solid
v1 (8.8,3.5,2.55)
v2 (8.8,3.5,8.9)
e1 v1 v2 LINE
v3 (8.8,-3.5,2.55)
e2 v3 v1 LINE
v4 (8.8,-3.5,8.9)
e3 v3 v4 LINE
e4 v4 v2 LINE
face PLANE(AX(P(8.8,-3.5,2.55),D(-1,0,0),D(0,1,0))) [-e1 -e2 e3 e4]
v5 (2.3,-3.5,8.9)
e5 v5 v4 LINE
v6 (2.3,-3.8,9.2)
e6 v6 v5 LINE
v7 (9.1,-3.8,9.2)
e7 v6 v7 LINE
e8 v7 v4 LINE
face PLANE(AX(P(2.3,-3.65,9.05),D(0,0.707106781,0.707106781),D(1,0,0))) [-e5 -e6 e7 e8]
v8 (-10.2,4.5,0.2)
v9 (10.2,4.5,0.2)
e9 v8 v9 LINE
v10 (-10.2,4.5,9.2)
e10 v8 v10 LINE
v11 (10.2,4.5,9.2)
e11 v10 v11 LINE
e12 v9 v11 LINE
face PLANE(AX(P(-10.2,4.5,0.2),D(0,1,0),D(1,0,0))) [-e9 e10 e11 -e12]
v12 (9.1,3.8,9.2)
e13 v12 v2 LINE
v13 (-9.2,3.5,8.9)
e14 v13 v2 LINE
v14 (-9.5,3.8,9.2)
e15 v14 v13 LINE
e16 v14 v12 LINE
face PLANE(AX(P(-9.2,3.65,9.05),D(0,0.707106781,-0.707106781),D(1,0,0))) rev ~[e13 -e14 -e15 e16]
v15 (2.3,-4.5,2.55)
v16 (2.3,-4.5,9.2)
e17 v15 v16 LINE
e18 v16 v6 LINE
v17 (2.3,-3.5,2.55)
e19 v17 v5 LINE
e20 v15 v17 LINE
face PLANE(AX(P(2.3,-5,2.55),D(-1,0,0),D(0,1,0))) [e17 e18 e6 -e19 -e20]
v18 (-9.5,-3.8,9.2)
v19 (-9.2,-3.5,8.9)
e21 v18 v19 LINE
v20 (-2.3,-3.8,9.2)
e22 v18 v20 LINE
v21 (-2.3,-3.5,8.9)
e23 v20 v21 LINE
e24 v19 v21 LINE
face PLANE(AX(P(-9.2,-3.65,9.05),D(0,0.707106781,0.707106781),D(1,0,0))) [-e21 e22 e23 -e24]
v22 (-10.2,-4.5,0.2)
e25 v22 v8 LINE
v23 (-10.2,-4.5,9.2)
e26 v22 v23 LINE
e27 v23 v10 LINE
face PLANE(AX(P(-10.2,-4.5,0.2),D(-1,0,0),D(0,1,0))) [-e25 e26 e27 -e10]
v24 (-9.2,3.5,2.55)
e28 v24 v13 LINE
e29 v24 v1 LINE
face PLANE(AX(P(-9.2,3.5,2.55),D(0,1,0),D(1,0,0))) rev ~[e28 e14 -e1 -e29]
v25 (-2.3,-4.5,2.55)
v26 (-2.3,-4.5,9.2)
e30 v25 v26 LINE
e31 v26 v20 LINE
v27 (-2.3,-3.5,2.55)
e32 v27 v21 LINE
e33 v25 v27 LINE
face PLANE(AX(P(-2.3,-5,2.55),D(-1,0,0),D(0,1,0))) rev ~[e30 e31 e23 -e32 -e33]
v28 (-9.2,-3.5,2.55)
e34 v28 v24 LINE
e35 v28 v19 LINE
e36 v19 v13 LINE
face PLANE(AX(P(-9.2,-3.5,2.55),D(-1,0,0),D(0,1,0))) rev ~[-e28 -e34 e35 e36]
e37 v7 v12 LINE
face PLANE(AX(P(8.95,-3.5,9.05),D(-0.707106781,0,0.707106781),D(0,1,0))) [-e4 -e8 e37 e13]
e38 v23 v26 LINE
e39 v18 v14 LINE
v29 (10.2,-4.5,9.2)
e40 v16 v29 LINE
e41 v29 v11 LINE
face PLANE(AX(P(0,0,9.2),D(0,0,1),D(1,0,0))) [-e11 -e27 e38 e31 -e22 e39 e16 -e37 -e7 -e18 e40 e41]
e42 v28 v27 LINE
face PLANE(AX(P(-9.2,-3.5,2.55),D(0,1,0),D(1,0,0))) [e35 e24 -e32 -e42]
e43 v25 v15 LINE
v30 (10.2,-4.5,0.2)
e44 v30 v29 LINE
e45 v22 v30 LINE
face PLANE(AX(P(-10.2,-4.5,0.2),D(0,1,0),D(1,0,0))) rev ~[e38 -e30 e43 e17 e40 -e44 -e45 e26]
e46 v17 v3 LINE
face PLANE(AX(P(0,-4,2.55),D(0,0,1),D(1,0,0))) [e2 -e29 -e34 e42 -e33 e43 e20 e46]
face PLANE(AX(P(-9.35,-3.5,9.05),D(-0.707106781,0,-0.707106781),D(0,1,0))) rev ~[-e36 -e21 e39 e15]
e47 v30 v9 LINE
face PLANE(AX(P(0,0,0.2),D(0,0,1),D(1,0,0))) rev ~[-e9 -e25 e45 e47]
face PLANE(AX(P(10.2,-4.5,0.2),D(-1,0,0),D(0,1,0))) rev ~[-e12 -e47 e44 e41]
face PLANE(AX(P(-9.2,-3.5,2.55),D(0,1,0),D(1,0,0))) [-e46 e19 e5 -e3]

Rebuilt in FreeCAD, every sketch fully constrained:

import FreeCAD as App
import Part
import Sketcher

V = App.Vector
Q = App.Units.Quantity


def edges_at(feature, points):
    """Names of the edges that pass closest to the given points."""
    edges = feature.Shape.Edges
    near = lambda p: min(range(len(edges)), key=lambda i: edges[i].distToShape(Part.Vertex(*p))[0])
    return sorted({f"Edge{near(p) + 1}" for p in points})


def add_polygon(sketch, points):
    """Adds a closed chain of lines whose ends are joined by coincident constraints."""
    first, n = sketch.GeometryCount, len(points)
    for a, b in zip(points, points[1:] + points[:1]):
        sketch.addGeometry(Part.LineSegment(App.Vector(*a, 0), App.Vector(*b, 0)), False)
    for i in range(n):
        sketch.addConstraint(Sketcher.Constraint("Coincident", first + i, 2, first + (i + 1) % n, 1))

doc = App.newDocument("Part")
params = doc.addObject("Spreadsheet::Sheet", "Params")
for row, (alias, value) in enumerate([
    ("sketch1_height", "2 mm"),
    ("sketch1_width", "4.6 mm"),
    ("pad1_length", "6.65 mm"),
    ("sketch2_width", "18 mm"),
    ("sketch2_height", "7 mm"),
    ("pad2_length", "6.65 mm"),
    ("sketch3_height", "9 mm"),
    ("sketch3_width", "20.4 mm"),
    ("pad3_length", "9 mm"),
    ("chamfer_size", "0.3 mm"),
], start=1):
    params.set(f"A{row}", alias)
    params.set(f"B{row}", "=" + value)
    params.setAlias(f"B{row}", alias)

body = doc.addObject("PartDesign::Body", "Body")

# Sketch on XY plane
sketch1 = body.newObject("Sketcher::SketchObject", "Sketch")
sketch1.AttachmentSupport = (doc.getObject("XY_Plane"), [""])
sketch1.MapMode = "FlatFace"
sketch1.AttachmentOffset = App.Placement(V(0, 0, 2.55), App.Rotation())
add_polygon(sketch1, [(-2.3, -3), (-2.3, -5), (2.3, -5), (2.3, -3)])  # lines 0-3
sketch1.addConstraint([
    Sketcher.Constraint("Vertical", 0),
    Sketcher.Constraint("Horizontal", 1),
    Sketcher.Constraint("Vertical", 2),
    Sketcher.Constraint("Horizontal", 3),
    Sketcher.Constraint("DistanceY", 0, 2, 0, 1, Q("2 mm")),
    Sketcher.Constraint("DistanceX", 1, 1, 1, 2, Q("4.6 mm")),
    Sketcher.Constraint("DistanceY", 0, 2, -1, 1, Q("5 mm")),
    Sketcher.Constraint("DistanceX", 0, 2, -1, 1, Q("2.3 mm")),
])
sketch1.setExpression("Constraints[8]", "Params.sketch1_height")
sketch1.setExpression("Constraints[9]", "Params.sketch1_width")
pad1 = body.newObject("PartDesign::Pad", "Pad")
pad1.Profile = sketch1
pad1.setExpression("Length", "Params.pad1_length")
body2 = doc.addObject("PartDesign::Body", "Body001")

# Sketch on XY plane
sketch2 = body2.newObject("Sketcher::SketchObject", "Sketch001")
sketch2.AttachmentSupport = (doc.getObject("XY_Plane001"), [""])
sketch2.MapMode = "FlatFace"
sketch2.AttachmentOffset = App.Placement(V(0, 0, 2.55), App.Rotation())
add_polygon(sketch2, [(-9, 4), (-9, -4), (9, -4), (9, 4)])  # lines 0-3
sketch2.addConstraint([
    Sketcher.Constraint("Vertical", 0),
    Sketcher.Constraint("Horizontal", 1),
    Sketcher.Constraint("Vertical", 2),
    Sketcher.Constraint("Horizontal", 3),
    Sketcher.Constraint("DistanceX", 1, 1, 1, 2, Q("18 mm")),
    Sketcher.Constraint("DistanceY", 0, 2, 0, 1, Q("7 mm")),
    Sketcher.Constraint("DistanceX", 0, 2, -1, 1, Q("9.2 mm")),
    Sketcher.Constraint("DistanceY", 0, 2, -1, 1, Q("3.5 mm")),
])
sketch2.setExpression("Constraints[8]", "Params.sketch2_width")
sketch2.setExpression("Constraints[9]", "Params.sketch2_height")
pad2 = body2.newObject("PartDesign::Pad", "Pad001")
pad2.Profile = sketch2
pad2.setExpression("Length", "Params.pad2_length")
body3 = doc.addObject("PartDesign::Body", "Body002")

# Sketch on XY plane
sketch3 = body3.newObject("Sketcher::SketchObject", "Sketch002")
sketch3.AttachmentSupport = (doc.getObject("XY_Plane002"), [""])
sketch3.MapMode = "FlatFace"
sketch3.AttachmentOffset = App.Placement(V(0, 0, 0.2), App.Rotation())
add_polygon(sketch3, [(-10, 4), (-10, -4), (10, -4), (10, 4)])  # lines 0-3
sketch3.addConstraint([
    Sketcher.Constraint("Vertical", 0),
    Sketcher.Constraint("Horizontal", 1),
    Sketcher.Constraint("Vertical", 2),
    Sketcher.Constraint("Horizontal", 3),
    Sketcher.Constraint("Symmetric", 0, 2, 2, 2, -1, 1),
    Sketcher.Constraint("DistanceY", 0, 2, 0, 1, Q("9 mm")),
    Sketcher.Constraint("DistanceX", 1, 1, 1, 2, Q("20.4 mm")),
])
sketch3.setExpression("Constraints[9]", "Params.sketch3_height")
sketch3.setExpression("Constraints[10]", "Params.sketch3_width")
pad3 = body3.newObject("PartDesign::Pad", "Pad002")
pad3.Profile = sketch3
pad3.setExpression("Length", "Params.pad3_length")
doc.recompute()

boolean = body3.newObject("PartDesign::Boolean", "Boolean")
boolean.Type = "Cut"
boolean.addObjects([body2])
doc.recompute()

boolean2 = body3.newObject("PartDesign::Boolean", "Boolean001")
boolean2.Type = "Cut"
boolean2.addObjects([body])
doc.recompute()

chamfer = body3.newObject("PartDesign::Chamfer", "Chamfer")
chamfer.Base = (boolean2, edges_at(boolean2, [
    (5.55, -3.5, 9.2),
    (8.8, 0, 9.2),
    (-0.2, 3.5, 9.2),
    (-9.2, 0, 9.2),
    (-5.75, -3.5, 9.2),
]))
chamfer.setExpression("Size", "Params.chamfer_size")

doc.recompute()
